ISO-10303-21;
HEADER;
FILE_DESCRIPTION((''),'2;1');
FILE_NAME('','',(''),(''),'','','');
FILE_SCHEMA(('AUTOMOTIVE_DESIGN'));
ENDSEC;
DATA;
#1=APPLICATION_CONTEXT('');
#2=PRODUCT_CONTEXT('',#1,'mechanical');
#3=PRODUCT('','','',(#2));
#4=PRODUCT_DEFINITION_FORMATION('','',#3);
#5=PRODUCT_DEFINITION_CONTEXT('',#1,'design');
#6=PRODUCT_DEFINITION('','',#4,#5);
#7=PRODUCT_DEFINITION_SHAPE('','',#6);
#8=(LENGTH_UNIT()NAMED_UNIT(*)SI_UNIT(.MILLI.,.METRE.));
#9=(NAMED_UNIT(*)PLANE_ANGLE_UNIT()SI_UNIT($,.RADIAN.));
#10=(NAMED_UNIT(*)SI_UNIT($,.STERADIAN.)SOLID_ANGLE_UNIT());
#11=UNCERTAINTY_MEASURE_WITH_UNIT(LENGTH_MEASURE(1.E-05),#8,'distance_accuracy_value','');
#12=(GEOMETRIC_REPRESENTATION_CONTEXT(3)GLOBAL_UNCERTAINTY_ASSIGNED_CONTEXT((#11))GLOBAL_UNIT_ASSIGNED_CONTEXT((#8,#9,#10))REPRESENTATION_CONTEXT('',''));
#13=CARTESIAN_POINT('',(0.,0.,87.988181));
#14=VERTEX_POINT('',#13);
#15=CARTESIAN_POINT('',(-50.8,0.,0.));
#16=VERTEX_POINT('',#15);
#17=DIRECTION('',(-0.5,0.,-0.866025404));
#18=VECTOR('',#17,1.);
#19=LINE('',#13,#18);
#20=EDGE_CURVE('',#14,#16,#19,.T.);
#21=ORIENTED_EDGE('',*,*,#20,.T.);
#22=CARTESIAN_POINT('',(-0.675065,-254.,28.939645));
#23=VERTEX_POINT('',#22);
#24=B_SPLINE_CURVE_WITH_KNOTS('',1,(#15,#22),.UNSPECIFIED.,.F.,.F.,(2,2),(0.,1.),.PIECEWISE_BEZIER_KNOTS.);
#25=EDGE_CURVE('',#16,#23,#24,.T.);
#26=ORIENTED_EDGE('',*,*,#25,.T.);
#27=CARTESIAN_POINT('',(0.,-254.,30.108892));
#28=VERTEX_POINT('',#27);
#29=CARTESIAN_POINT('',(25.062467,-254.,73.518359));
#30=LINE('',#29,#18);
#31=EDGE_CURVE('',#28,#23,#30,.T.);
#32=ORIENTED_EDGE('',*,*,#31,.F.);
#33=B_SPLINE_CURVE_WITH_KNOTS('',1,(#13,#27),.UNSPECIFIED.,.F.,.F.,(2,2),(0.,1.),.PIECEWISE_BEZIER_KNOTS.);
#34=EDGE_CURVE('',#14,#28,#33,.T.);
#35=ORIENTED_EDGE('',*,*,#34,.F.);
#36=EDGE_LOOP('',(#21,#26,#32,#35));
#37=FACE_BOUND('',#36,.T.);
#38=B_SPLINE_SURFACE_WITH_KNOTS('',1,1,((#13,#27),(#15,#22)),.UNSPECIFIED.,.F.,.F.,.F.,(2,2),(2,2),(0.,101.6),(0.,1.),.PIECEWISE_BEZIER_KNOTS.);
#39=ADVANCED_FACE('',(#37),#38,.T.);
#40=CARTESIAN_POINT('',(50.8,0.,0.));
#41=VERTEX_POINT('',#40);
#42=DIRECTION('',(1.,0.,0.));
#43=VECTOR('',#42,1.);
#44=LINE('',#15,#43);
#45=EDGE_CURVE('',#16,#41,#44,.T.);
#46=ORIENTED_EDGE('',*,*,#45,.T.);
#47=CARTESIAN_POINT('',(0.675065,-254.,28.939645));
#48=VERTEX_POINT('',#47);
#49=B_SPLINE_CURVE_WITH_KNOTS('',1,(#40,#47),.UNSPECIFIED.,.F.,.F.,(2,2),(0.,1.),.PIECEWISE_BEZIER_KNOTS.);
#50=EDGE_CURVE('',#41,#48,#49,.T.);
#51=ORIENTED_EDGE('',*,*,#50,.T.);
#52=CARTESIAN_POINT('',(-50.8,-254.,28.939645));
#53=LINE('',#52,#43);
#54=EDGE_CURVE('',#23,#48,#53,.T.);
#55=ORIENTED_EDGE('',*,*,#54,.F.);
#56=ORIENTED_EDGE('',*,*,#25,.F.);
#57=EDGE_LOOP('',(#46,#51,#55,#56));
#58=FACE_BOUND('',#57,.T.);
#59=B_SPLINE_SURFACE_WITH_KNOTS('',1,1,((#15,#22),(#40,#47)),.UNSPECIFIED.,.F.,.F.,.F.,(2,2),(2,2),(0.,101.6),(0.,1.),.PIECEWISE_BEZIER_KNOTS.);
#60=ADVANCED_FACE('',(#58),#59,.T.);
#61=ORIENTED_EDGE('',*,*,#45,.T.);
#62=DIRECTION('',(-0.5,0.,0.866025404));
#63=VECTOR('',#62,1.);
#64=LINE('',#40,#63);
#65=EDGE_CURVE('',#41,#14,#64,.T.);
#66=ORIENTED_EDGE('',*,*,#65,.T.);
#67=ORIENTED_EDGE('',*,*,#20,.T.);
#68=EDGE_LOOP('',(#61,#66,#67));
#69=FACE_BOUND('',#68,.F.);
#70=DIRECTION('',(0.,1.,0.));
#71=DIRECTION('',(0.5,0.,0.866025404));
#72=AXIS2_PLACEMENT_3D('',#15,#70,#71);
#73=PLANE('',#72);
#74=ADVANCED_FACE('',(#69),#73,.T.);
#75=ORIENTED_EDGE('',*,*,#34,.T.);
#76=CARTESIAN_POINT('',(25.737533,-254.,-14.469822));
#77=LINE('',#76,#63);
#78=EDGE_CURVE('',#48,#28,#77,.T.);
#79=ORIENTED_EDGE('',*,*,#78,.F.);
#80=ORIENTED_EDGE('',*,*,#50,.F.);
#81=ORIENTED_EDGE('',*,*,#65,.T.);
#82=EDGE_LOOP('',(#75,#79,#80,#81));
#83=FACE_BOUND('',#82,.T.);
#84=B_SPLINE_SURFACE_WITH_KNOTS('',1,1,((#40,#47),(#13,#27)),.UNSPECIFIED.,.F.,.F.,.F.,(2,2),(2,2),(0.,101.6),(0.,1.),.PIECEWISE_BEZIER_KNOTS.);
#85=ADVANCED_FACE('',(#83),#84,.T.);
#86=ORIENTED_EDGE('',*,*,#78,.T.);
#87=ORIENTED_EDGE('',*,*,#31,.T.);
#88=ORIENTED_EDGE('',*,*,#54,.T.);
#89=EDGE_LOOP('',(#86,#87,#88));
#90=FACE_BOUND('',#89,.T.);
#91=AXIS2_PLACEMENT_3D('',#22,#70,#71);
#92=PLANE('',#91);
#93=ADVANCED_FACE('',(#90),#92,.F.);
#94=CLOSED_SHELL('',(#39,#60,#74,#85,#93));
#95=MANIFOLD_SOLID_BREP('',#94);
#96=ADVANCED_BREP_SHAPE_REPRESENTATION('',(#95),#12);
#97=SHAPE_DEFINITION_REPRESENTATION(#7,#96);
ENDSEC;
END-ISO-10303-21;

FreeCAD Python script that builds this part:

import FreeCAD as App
import Part
import Sketcher
Q = App.Units.Quantity


def add_polygon(sketch, points):
    """Adds a closed chain of lines whose ends are joined by coincident constraints."""
    first, n = sketch.GeometryCount, len(points)
    for a, b in zip(points, points[1:] + points[:1]):
        sketch.addGeometry(Part.LineSegment(App.Vector(*a, 0), App.Vector(*b, 0)), False)
    for i in range(n):
        sketch.addConstraint(Sketcher.Constraint("Coincident", first + i, 2, first + (i + 1) % n, 1))

doc = App.newDocument("Part")
body = doc.addObject("PartDesign::Body", "Body")

# Sketch on XZ plane
sketch1 = body.newObject("Sketcher::SketchObject", "Sketch")
sketch1.AttachmentSupport = (doc.getObject("XZ_Plane"), [""])
sketch1.MapMode = "FlatFace"
add_polygon(sketch1, [(-50.8, 0), (50.8, 0), (0, 87.988181)])  # lines 0-2
sketch1.addConstraint([
    Sketcher.Constraint("Horizontal", 0),
    Sketcher.Constraint("Symmetric", 0, 2, 2, 2, -1, 1),
    Sketcher.Constraint("PointOnObject", 1, 2, -2),
    Sketcher.Constraint("DistanceX", 0, 1, 0, 2, Q("4 in")),
    Sketcher.Constraint("Distance", 1, Q("4 in")),
])
pad1 = body.newObject("PartDesign::Pad", "Pad")
pad1.Profile = sketch1
pad1.Length = Q("10 in")
pad1.TaperAngle = -6.5

doc.recompute()
